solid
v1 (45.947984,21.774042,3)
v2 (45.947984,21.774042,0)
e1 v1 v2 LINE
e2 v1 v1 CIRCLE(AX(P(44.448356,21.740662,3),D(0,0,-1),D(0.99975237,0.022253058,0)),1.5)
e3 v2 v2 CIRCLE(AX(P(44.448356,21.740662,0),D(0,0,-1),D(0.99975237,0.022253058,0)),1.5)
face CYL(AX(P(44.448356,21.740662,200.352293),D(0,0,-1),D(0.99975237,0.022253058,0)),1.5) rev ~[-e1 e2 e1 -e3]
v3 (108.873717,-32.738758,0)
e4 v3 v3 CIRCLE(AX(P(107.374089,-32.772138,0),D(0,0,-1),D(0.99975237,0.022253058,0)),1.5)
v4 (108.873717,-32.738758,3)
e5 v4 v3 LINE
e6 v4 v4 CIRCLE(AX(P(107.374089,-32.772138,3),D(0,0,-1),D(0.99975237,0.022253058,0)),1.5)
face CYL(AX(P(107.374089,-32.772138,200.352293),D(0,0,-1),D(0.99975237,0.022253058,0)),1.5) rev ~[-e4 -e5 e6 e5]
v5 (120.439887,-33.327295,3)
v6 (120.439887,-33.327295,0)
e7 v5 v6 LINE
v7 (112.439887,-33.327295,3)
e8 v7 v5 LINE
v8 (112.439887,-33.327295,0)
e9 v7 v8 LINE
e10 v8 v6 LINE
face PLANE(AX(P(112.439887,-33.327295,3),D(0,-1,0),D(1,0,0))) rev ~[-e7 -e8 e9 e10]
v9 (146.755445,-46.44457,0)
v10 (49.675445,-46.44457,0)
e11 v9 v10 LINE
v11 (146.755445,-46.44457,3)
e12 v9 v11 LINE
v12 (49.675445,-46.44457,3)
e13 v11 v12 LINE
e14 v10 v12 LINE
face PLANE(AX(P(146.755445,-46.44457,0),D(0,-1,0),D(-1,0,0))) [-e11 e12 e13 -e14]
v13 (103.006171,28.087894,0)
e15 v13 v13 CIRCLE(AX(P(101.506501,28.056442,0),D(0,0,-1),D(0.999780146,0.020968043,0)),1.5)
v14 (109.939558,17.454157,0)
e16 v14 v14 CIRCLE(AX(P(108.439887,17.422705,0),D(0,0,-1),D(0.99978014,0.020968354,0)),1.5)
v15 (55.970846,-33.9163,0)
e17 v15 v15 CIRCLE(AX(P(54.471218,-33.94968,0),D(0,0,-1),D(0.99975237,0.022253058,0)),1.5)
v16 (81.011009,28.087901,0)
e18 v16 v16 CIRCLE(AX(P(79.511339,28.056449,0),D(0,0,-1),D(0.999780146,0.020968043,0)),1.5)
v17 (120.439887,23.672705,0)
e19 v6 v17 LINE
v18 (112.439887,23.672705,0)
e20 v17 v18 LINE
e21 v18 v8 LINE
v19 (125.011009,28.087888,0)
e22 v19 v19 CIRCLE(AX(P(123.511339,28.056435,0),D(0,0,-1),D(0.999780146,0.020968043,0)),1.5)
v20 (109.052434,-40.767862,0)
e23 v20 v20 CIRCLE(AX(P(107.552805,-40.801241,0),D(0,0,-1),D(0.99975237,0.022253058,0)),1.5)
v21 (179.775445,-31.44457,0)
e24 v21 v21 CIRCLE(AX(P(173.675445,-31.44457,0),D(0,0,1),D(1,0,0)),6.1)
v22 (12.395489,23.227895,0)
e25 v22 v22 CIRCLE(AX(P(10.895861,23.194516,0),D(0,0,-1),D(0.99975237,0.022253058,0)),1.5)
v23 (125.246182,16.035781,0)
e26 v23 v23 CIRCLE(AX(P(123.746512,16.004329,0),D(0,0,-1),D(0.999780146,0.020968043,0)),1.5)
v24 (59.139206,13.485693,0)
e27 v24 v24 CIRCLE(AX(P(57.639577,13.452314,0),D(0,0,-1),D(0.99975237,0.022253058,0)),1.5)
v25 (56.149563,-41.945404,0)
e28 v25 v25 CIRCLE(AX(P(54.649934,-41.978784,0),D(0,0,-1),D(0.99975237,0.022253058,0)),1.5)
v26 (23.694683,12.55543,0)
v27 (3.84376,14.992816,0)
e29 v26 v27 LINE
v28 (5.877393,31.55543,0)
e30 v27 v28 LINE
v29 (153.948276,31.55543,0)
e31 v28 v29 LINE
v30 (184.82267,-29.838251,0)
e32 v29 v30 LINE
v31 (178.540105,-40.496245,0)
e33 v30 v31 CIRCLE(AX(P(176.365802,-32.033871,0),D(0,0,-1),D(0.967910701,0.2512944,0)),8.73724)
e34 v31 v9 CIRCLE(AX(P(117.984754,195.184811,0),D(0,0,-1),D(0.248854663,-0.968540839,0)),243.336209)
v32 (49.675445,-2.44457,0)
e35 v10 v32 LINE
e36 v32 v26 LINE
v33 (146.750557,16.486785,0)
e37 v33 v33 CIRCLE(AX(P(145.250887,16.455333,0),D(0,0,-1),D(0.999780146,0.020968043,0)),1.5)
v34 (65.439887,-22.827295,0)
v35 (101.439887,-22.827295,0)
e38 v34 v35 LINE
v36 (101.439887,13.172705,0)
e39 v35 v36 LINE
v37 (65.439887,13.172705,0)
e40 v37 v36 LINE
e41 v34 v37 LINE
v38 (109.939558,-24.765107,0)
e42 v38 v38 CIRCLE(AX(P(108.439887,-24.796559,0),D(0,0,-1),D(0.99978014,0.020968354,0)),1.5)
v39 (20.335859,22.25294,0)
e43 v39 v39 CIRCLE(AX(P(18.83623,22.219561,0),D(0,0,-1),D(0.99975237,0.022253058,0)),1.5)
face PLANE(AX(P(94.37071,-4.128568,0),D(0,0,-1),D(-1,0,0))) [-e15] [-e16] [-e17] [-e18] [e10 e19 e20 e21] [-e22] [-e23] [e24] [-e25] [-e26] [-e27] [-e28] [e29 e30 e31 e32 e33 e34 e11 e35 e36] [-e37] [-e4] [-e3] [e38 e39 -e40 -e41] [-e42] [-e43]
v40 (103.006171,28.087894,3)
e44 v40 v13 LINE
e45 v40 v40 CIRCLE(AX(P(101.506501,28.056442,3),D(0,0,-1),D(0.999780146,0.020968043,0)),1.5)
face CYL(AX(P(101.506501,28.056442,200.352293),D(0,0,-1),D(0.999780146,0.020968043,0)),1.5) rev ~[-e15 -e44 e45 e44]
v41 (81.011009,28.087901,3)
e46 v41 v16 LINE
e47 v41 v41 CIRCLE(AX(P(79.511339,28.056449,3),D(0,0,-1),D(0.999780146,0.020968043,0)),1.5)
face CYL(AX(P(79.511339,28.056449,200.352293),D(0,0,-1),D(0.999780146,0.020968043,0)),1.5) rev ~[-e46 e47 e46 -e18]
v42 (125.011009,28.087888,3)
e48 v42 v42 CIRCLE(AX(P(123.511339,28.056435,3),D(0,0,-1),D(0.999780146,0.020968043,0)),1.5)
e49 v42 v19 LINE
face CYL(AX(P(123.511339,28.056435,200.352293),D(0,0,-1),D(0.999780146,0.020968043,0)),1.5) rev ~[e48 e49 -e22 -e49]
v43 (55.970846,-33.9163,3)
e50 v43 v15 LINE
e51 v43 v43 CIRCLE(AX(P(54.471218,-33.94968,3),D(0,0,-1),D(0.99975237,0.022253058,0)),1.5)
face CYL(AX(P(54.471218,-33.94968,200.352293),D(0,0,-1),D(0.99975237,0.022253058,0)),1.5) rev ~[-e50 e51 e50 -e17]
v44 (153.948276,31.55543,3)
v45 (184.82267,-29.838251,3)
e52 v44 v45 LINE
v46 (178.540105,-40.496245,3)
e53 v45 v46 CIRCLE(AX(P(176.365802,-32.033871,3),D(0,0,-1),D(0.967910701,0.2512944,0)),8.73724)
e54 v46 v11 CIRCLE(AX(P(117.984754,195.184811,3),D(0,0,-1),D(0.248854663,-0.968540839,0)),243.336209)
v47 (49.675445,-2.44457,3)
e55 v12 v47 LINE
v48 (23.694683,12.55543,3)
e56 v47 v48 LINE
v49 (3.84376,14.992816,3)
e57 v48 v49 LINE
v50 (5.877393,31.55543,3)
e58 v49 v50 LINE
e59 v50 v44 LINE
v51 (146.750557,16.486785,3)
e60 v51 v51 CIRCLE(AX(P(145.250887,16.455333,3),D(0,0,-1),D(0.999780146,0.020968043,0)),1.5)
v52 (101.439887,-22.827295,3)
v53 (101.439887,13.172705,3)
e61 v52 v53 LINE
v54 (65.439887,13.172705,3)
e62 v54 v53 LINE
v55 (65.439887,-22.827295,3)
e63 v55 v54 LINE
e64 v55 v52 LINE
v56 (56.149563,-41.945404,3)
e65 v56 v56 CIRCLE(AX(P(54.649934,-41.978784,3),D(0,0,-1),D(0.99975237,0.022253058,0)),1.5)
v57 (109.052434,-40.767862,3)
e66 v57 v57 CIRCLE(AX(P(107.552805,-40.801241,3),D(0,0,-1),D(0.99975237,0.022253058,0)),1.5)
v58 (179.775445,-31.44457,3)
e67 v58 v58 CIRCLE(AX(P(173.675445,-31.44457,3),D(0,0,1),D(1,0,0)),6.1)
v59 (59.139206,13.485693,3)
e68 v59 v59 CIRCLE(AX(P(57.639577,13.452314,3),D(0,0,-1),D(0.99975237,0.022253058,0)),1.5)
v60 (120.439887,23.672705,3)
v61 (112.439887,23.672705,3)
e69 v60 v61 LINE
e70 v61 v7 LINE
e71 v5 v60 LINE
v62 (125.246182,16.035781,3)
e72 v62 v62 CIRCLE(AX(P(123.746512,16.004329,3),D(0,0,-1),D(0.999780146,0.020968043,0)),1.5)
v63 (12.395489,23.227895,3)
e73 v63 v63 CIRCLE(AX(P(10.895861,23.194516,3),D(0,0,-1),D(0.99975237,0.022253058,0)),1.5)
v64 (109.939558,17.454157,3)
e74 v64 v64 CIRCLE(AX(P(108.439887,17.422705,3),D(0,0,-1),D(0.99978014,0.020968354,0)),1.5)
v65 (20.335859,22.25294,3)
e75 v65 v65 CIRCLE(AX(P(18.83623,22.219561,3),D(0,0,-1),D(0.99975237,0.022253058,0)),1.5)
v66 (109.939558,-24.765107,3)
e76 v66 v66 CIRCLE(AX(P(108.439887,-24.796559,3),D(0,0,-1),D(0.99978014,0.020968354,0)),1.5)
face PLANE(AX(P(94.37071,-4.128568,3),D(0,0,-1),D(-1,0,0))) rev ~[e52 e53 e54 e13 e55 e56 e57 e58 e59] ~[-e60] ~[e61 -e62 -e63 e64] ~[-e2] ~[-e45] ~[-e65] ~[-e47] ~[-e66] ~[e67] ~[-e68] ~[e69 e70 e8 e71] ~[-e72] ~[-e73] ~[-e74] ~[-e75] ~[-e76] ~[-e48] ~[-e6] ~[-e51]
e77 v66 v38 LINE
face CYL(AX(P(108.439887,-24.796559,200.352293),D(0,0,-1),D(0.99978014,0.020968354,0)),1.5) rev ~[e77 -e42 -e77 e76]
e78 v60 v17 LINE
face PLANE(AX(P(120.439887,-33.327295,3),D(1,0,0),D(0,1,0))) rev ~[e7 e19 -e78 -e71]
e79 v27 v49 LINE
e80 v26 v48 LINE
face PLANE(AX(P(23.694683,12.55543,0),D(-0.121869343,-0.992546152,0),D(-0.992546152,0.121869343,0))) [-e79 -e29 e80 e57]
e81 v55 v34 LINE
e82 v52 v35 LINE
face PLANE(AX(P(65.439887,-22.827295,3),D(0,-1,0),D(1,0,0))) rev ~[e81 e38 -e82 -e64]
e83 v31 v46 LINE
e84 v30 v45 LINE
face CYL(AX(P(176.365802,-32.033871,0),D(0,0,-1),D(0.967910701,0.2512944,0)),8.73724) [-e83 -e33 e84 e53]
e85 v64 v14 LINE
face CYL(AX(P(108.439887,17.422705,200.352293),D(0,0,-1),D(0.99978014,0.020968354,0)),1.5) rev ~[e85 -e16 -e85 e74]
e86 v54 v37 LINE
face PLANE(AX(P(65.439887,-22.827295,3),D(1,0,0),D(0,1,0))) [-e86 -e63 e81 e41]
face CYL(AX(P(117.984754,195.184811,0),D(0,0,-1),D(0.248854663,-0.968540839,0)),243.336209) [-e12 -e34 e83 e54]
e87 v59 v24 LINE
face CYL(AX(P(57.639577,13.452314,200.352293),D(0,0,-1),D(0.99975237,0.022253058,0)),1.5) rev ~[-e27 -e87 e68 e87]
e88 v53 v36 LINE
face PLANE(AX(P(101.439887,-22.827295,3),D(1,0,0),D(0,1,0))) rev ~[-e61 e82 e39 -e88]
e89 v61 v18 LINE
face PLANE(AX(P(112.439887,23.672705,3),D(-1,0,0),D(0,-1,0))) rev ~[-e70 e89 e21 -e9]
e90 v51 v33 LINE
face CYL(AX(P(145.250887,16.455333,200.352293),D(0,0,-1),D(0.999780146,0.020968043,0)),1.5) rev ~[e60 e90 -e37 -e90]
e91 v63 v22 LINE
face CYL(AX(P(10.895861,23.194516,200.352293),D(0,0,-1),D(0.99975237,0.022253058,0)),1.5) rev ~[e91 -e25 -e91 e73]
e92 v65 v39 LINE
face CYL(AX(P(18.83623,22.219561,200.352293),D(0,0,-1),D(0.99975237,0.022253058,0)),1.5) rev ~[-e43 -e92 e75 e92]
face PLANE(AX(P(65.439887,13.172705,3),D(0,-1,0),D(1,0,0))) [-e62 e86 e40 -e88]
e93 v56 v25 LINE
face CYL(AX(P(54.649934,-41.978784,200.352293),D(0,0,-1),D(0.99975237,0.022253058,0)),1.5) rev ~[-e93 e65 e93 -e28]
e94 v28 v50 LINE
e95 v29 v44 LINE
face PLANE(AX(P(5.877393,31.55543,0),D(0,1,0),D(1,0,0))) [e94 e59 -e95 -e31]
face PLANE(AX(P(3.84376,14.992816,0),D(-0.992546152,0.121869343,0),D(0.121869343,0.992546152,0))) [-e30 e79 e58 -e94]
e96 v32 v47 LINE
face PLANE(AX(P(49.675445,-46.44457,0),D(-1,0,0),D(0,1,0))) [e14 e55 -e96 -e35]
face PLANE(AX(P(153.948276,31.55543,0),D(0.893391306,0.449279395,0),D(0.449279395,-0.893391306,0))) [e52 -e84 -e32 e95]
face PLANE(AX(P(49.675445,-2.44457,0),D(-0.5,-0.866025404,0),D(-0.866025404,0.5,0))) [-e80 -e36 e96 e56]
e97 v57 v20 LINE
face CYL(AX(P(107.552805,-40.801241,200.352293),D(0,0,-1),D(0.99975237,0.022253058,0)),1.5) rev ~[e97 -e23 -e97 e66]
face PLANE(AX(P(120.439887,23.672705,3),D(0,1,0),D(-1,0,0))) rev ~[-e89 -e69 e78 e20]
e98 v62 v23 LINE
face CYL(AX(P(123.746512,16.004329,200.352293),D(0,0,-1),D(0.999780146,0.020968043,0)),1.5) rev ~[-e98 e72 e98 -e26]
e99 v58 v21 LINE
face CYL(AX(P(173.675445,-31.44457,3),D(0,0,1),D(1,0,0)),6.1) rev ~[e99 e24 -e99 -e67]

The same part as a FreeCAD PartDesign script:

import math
import FreeCAD as App
import Part
import Sketcher
from FreeCAD import Vector
Q = App.Units.Quantity


def add_polygon(sketch, points):
    """Adds a closed chain of lines whose ends are joined by coincident constraints."""
    first, n = sketch.GeometryCount, len(points)
    for a, b in zip(points, points[1:] + points[:1]):
        sketch.addGeometry(Part.LineSegment(App.Vector(*a, 0), App.Vector(*b, 0)), False)
    for i in range(n):
        sketch.addConstraint(Sketcher.Constraint("Coincident", first + i, 2, first + (i + 1) % n, 1))

doc = App.newDocument("Part")
params = doc.addObject("Spreadsheet::Sheet", "Params")
for row, (alias, value) in enumerate([
    ("sketch1_height", "44 mm"),
    ("sketch1_length", "20 mm"),
    ("sketch1_length2", "30 mm"),
    ("sketch1_width", "97.08 mm"),
    ("pad1_length", "3 mm"),
    ("sketch2_diameter", "12.2 mm"),
    ("sketch3_width", "36 mm"),
    ("sketch4_width", "8 mm"),
    ("sketch4_height", "57 mm"),
    ("sketch5_diameter", "3 mm"),
    ("hole_diameter", "3 mm"),
    ("sketch6_diameter", "3 mm"),
    ("hole2_diameter", "3 mm"),
    ("sketch7_diameter", "3 mm"),
    ("hole3_diameter", "3 mm"),
    ("sketch8_diameter", "3 mm"),
    ("hole4_diameter", "3 mm"),
    ("sketch9_diameter", "3 mm"),
    ("hole5_diameter", "3 mm"),
], start=1):
    params.set(f"A{row}", alias)
    params.set(f"B{row}", "=" + value)
    params.setAlias(f"B{row}", alias)

body = doc.addObject("PartDesign::Body", "Body")

sketch1 = body.newObject("Sketcher::SketchObject", "Sketch")
sketch1.AttachmentSupport = (doc.getObject("XY_Plane"), [""])
sketch1.MapMode = "FlatFace"
sketch1.addGeometry([
    Part.LineSegment(Vector(185, -30, 0), Vector(154, 32, 0)),
    Part.LineSegment(Vector(154, 32, 0), Vector(6, 32, 0)),
    Part.LineSegment(Vector(6, 32, 0), Vector(4, 15, 0)),
    Part.LineSegment(Vector(4, 15, 0), Vector(24, 13, 0)),
    Part.LineSegment(Vector(24, 13, 0), Vector(50, -2, 0)),
    Part.LineSegment(Vector(50, -2, 0), Vector(50, -46, 0)),
    Part.LineSegment(Vector(50, -46, 0), Vector(147, -46, 0)),
    Part.ArcOfCircle(Part.Circle(Vector(118, 195, 0), Vector(0, 0, 1), 243), math.radians(-83.21), math.radians(-75.59)),
    Part.ArcOfCircle(Part.Circle(Vector(176, -32, 0), Vector(0, 0, 1), 9), math.radians(-76), math.radians(15)),
], False)
sketch1.addConstraint([
    Sketcher.Constraint("Coincident", 0, 2, 1, 1),
    Sketcher.Constraint("Coincident", 1, 2, 2, 1),
    Sketcher.Constraint("Coincident", 2, 2, 3, 1),
    Sketcher.Constraint("Coincident", 3, 2, 4, 1),
    Sketcher.Constraint("Coincident", 4, 2, 5, 1),
    Sketcher.Constraint("Coincident", 5, 2, 6, 1),
    Sketcher.Constraint("Coincident", 6, 2, 7, 1),
    Sketcher.Constraint("Tangent", 7, 2, 8, 1),
    Sketcher.Constraint("Coincident", 8, 2, 0, 1),
    Sketcher.Constraint("Horizontal", 1),
    Sketcher.Constraint("Vertical", 5),
    Sketcher.Constraint("Horizontal", 6),
    Sketcher.Constraint("Perpendicular", 2, 3),
    Sketcher.Constraint("DistanceY", 5, 2, 5, 1, 44.0),
    Sketcher.Constraint("Angle", 2, Q("-97 deg")),
    Sketcher.Constraint("Angle", 4, Q("-30 deg")),
    Sketcher.Constraint("Distance", 3, 20.0),
    Sketcher.Constraint("Distance", 4, 30.0),
    Sketcher.Constraint("DistanceY", 3, 2, 1, 2, 19.0),
    Sketcher.Constraint("DistanceX", 6, 1, 6, 2, 97.08),
    Sketcher.Constraint("Radius", 7, 243.336209),
    Sketcher.Constraint("Radius", 8, 8.73724),
    Sketcher.Constraint("DistanceX", -1, 1, 8, 3, 176.365802),
    Sketcher.Constraint("DistanceY", 8, 3, 0, 2, 63.5893),
    Sketcher.Constraint("Distance", 0, 68.71981),
    Sketcher.Constraint("DistanceX", 1, 2, 1, 1, 148.070883),
    Sketcher.Constraint("DistanceY", -1, 1, 7, 3, 195.184811),
    Sketcher.Constraint("DistanceY", 8, 3, -1, 1, 32.033871),
])
sketch1.setExpression("Constraints[13]", "Params.sketch1_height")
sketch1.setExpression("Constraints[16]", "Params.sketch1_length")
sketch1.setExpression("Constraints[17]", "Params.sketch1_length2")
sketch1.setExpression("Constraints[19]", "Params.sketch1_width")
pad1 = body.newObject("PartDesign::Pad", "Pad")
pad1.Profile = sketch1
pad1.setExpression("Length", "Params.pad1_length")

sketch2 = body.newObject("Sketcher::SketchObject", "Sketch001")
sketch2.AttachmentSupport = (doc.getObject("XY_Plane"), [""])
sketch2.MapMode = "FlatFace"
sketch2.AttachmentOffset = App.Placement(Vector(0, 0, 3), App.Rotation())
sketch2.addGeometry(Part.Circle(Vector(174, -31, 0), Vector(0, 0, 1), 6), False)
sketch2.addConstraint([
    Sketcher.Constraint("Diameter", 0, 12.2),
    Sketcher.Constraint("DistanceY", 0, 3, -1, 1, 31.44457),
    Sketcher.Constraint("DistanceX", -1, 1, 0, 3, 173.675445),
])
sketch2.setExpression("Constraints[0]", "Params.sketch2_diameter")
pocket1 = body.newObject("PartDesign::Pocket", "Pocket")
pocket1.Profile = sketch2
pocket1.Type = "UpToFirst"

sketch3 = body.newObject("Sketcher::SketchObject", "Sketch002")
sketch3.AttachmentSupport = (doc.getObject("XY_Plane"), [""])
sketch3.MapMode = "FlatFace"
sketch3.AttachmentOffset = App.Placement(Vector(0, 0, 3), App.Rotation())
add_polygon(sketch3, [(65, 13), (65, -23), (101, -23), (101, 13)])
sketch3.addConstraint([
    Sketcher.Constraint("Vertical", 0),
    Sketcher.Constraint("Horizontal", 1),
    Sketcher.Constraint("Vertical", 2),
    Sketcher.Constraint("Horizontal", 3),
    Sketcher.Constraint("Equal", 3, 0),
    Sketcher.Constraint("DistanceX", 1, 1, 1, 2, 36.0),
    Sketcher.Constraint("DistanceX", -1, 1, 0, 2, 65.439887),
    Sketcher.Constraint("DistanceY", 0, 2, -1, 1, 22.827295),
])
sketch3.setExpression("Constraints[9]", "Params.sketch3_width")
pocket2 = body.newObject("PartDesign::Pocket", "Pocket001")
pocket2.Profile = sketch3
pocket2.Type = "UpToFirst"

sketch4 = body.newObject("Sketcher::SketchObject", "Sketch003")
sketch4.AttachmentSupport = (doc.getObject("XY_Plane"), [""])
sketch4.MapMode = "FlatFace"
sketch4.AttachmentOffset = App.Placement(Vector(0, 0, 3), App.Rotation())
add_polygon(sketch4, [(112, -33), (120, -33), (120, 24), (112, 24)])
sketch4.addConstraint([
    Sketcher.Constraint("Horizontal", 0),
    Sketcher.Constraint("Vertical", 1),
    Sketcher.Constraint("Horizontal", 2),
    Sketcher.Constraint("Vertical", 3),
    Sketcher.Constraint("DistanceX", 0, 1, 0, 2, 8.0),
    Sketcher.Constraint("DistanceY", 1, 1, 1, 2, 57.0),
    Sketcher.Constraint("DistanceX", -1, 1, 0, 2, 120.439887),
    Sketcher.Constraint("DistanceY", 0, 2, -1, 1, 33.327295),
])
sketch4.setExpression("Constraints[8]", "Params.sketch4_width")
sketch4.setExpression("Constraints[9]", "Params.sketch4_height")
pocket3 = body.newObject("PartDesign::Pocket", "Pocket002")
pocket3.Profile = sketch4
pocket3.Type = "UpToFirst"

sketch5 = body.newObject("Sketcher::SketchObject", "Sketch004")
sketch5.AttachmentSupport = (doc.getObject("XY_Plane"), [""])
sketch5.MapMode = "FlatFace"
sketch5.AttachmentOffset = App.Placement(Vector(0, 0, 3), App.Rotation())
sketch5.addGeometry([
    Part.Circle(Vector(123.5, 28.1, 0), Vector(0, 0, 1), 1.5),
    Part.Circle(Vector(101.5, 28.1, 0), Vector(0, 0, 1), 1.5),
    Part.Circle(Vector(79.5, 28.1, 0), Vector(0, 0, 1), 1.5),
], False)
sketch5.addConstraint([
    Sketcher.Constraint("Equal", 0, 1),
    Sketcher.Constraint("Equal", 1, 2),
    Sketcher.Constraint("Diameter", 0, 3.0),
    Sketcher.Constraint("DistanceX", 2, 3, 0, 3, 44.0),
    Sketcher.Constraint("DistanceX", -1, 1, 1, 3, 101.506501),
    Sketcher.Constraint("DistanceX", -1, 1, 0, 3, 123.511339),
    Sketcher.Constraint("DistanceY", -1, 1, 2, 3, 28.056449),
    Sketcher.Constraint("DistanceY", -1, 1, 0, 3, 28.056435),
    Sketcher.Constraint("DistanceY", -1, 1, 1, 3, 28.056442),
])
sketch5.setExpression("Constraints[2]", "Params.sketch5_diameter")
doc.recompute()
hole = body.newObject("PartDesign::Hole", "Hole")
hole.Profile = sketch5
hole.ThreadType = "None"
hole.setExpression("Diameter", "Params.hole_diameter")
hole.DepthType = "ThroughAll"

sketch6 = body.newObject("Sketcher::SketchObject", "Sketch005")
sketch6.AttachmentSupport = (doc.getObject("XY_Plane"), [""])
sketch6.MapMode = "FlatFace"
sketch6.AttachmentOffset = App.Placement(Vector(0, 0, 3), App.Rotation())
sketch6.addGeometry([
    Part.Circle(Vector(123.7, 16, 0), Vector(0, 0, 1), 1.5),
    Part.Circle(Vector(145.3, 16.5, 0), Vector(0, 0, 1), 1.5),
], False)
sketch6.addConstraint([
    Sketcher.Constraint("Equal", 0, 1),
    Sketcher.Constraint("Diameter", 0, 3.0),
    Sketcher.Constraint("DistanceX", -1, 1, 0, 3, 123.746512),
    Sketcher.Constraint("DistanceY", -1, 1, 0, 3, 16.004329),
    Sketcher.Constraint("DistanceX", -1, 1, 1, 3, 145.250887),
    Sketcher.Constraint("DistanceY", -1, 1, 1, 3, 16.455333),
])
sketch6.setExpression("Constraints[1]", "Params.sketch6_diameter")
doc.recompute()
hole2 = body.newObject("PartDesign::Hole", "Hole001")
hole2.Profile = sketch6
hole2.ThreadType = "None"
hole2.setExpression("Diameter", "Params.hole2_diameter")
hole2.DepthType = "ThroughAll"

sketch7 = body.newObject("Sketcher::SketchObject", "Sketch006")
sketch7.AttachmentSupport = (doc.getObject("XY_Plane"), [""])
sketch7.MapMode = "FlatFace"
sketch7.AttachmentOffset = App.Placement(Vector(0, 0, 3), App.Rotation())
sketch7.addGeometry([
    Part.Circle(Vector(108.4, 17.4, 0), Vector(0, 0, 1), 1.5),
    Part.Circle(Vector(108.4, -24.8, 0), Vector(0, 0, 1), 1.5),
], False)
sketch7.addConstraint([
    Sketcher.Constraint("Equal", 0, 1),
    Sketcher.Constraint("Vertical", 0, 3, 1, 3),
    Sketcher.Constraint("Diameter", 0, 3.0),
    Sketcher.Constraint("DistanceY", 1, 3, -1, 1, 24.796559),
    Sketcher.Constraint("DistanceX", -1, 1, 0, 3, 108.439888),
    Sketcher.Constraint("DistanceY", -1, 1, 0, 3, 17.422705),
])
sketch7.setExpression("Constraints[2]", "Params.sketch7_diameter")
doc.recompute()
hole3 = body.newObject("PartDesign::Hole", "Hole002")
hole3.Profile = sketch7
hole3.ThreadType = "None"
hole3.setExpression("Diameter", "Params.hole3_diameter")
hole3.DepthType = "ThroughAll"

sketch8 = body.newObject("Sketcher::SketchObject", "Sketch007")
sketch8.AttachmentSupport = (doc.getObject("XY_Plane"), [""])
sketch8.MapMode = "FlatFace"
sketch8.AttachmentOffset = App.Placement(Vector(0, 0, 3), App.Rotation())
sketch8.addGeometry([
    Part.Circle(Vector(57.6, 13.5, 0), Vector(0, 0, 1), 1.5),
    Part.Circle(Vector(44.4, 21.7, 0), Vector(0, 0, 1), 1.5),
    Part.Circle(Vector(18.8, 22.2, 0), Vector(0, 0, 1), 1.5),
    Part.Circle(Vector(10.9, 23.2, 0), Vector(0, 0, 1), 1.5),
], False)
sketch8.addConstraint([
    Sketcher.Constraint("Equal", 0, 1),
    Sketcher.Constraint("Equal", 1, 2),
    Sketcher.Constraint("Equal", 2, 3),
    Sketcher.Constraint("Diameter", 0, 3.0),
    Sketcher.Constraint("DistanceY", 1, 3, 2, 3, 0.478899),
    Sketcher.Constraint("DistanceY", 0, 3, 3, 3, 9.742202),
    Sketcher.Constraint("DistanceY", -1, 1, 1, 3, 21.740662),
    Sketcher.Constraint("DistanceX", -1, 1, 2, 3, 18.83623),
    Sketcher.Constraint("DistanceX", -1, 1, 3, 3, 10.895861),
    Sketcher.Constraint("DistanceX", 1, 3, 0, 3, 13.191222),
    Sketcher.Constraint("DistanceY", 0, 3, 1, 3, 8.288348),
    Sketcher.Constraint("DistanceX", -1, 1, 0, 3, 57.639577),
])
sketch8.setExpression("Constraints[3]", "Params.sketch8_diameter")
doc.recompute()
hole4 = body.newObject("PartDesign::Hole", "Hole003")
hole4.Profile = sketch8
hole4.ThreadType = "None"
hole4.setExpression("Diameter", "Params.hole4_diameter")
hole4.DepthType = "ThroughAll"

sketch9 = body.newObject("Sketcher::SketchObject", "Sketch008")
sketch9.AttachmentSupport = (doc.getObject("XY_Plane"), [""])
sketch9.MapMode = "FlatFace"
sketch9.AttachmentOffset = App.Placement(Vector(0, 0, 3), App.Rotation())
sketch9.addGeometry([
    Part.Circle(Vector(54.6, -42, 0), Vector(0, 0, 1), 1.5),
    Part.Circle(Vector(54.5, -33.9, 0), Vector(0, 0, 1), 1.5),
    Part.Circle(Vector(107.6, -40.8, 0), Vector(0, 0, 1), 1.5),
    Part.Circle(Vector(107.4, -32.8, 0), Vector(0, 0, 1), 1.5),
], False)
sketch9.addConstraint([
    Sketcher.Constraint("Equal", 0, 1),
    Sketcher.Constraint("Equal", 1, 2),
    Sketcher.Constraint("Equal", 2, 3),
    Sketcher.Constraint("Diameter", 0, 3.0),
    Sketcher.Constraint("DistanceY", 1, 3, -1, 1, 33.94968),
    Sketcher.Constraint("DistanceY", 2, 3, -1, 1, 40.801241),
    Sketcher.Constraint("DistanceX", -1, 1, 3, 3, 107.374089),
    Sketcher.Constraint("DistanceX", 0, 3, 2, 3, 52.902871),
    Sketcher.Constraint("DistanceX", 1, 3, 3, 3, 52.902871),
    Sketcher.Constraint("DistanceX", -1, 1, 0, 3, 54.649934),
    Sketcher.Constraint("DistanceY", 0, 3, -1, 1, 41.978784),
    Sketcher.Constraint("DistanceY", 3, 3, -1, 1, 32.772138),
])
sketch9.setExpression("Constraints[3]", "Params.sketch9_diameter")
doc.recompute()
hole5 = body.newObject("PartDesign::Hole", "Hole004")
hole5.Profile = sketch9
hole5.ThreadType = "None"
hole5.setExpression("Diameter", "Params.hole5_diameter")
hole5.DepthType = "ThroughAll"

doc.recompute()
